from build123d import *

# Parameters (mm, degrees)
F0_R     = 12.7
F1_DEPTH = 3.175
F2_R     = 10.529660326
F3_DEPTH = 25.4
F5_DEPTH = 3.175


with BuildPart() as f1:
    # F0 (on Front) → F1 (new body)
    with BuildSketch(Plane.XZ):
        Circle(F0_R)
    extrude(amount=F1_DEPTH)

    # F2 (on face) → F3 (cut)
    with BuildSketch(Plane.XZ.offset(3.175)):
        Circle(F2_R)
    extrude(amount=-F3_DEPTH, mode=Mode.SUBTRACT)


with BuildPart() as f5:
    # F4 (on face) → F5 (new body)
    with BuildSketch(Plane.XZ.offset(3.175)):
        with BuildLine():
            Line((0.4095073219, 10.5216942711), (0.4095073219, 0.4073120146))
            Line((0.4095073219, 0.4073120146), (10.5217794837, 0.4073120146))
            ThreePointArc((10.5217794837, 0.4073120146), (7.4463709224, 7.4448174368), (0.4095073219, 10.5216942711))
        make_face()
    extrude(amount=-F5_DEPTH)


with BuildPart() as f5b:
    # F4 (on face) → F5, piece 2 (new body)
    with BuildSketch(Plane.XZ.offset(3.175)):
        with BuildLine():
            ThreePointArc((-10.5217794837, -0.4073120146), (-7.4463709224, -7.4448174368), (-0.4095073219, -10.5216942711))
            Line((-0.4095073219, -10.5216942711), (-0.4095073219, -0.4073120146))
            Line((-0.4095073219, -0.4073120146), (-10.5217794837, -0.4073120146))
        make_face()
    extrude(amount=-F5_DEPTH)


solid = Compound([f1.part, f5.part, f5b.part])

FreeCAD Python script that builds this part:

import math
import FreeCAD as App
import Part
import Sketcher
Q = App.Units.Quantity

doc = App.newDocument("Part")
params = doc.addObject("Spreadsheet::Sheet", "Params")
for row, (alias, value) in enumerate([
    ("sketch1_diameter", "1 in"),
    ("pad1_length", "0.125 in"),
    ("pocket1_length", "1 in"),
    ("pad2_length", "0.125 in"),
    ("pad3_length", "0.125 in"),
], start=1):
    params.set(f"A{row}", alias)
    params.set(f"B{row}", "=" + value)
    params.setAlias(f"B{row}", alias)

body = doc.addObject("PartDesign::Body", "Body")

sketch1 = body.newObject("Sketcher::SketchObject", "Sketch")
sketch1.AttachmentSupport = (doc.getObject("XZ_Plane"), [""])
sketch1.MapMode = "FlatFace"
sketch1.addGeometry(Part.Circle(App.Vector(0, 0, 0), App.Vector(0, 0, 1), 13), False)
sketch1.addConstraint(Sketcher.Constraint("Coincident", 0, 3, -1, 1))
sketch1.addConstraint(Sketcher.Constraint("Diameter", 0, Q("1 in")))
sketch1.setExpression("Constraints[1]", "Params.sketch1_diameter")
pad1 = body.newObject("PartDesign::Pad", "Pad")
pad1.Profile = sketch1
pad1.setExpression("Length", "Params.pad1_length")

sketch2 = body.newObject("Sketcher::SketchObject", "Sketch001")
sketch2.AttachmentSupport = (doc.getObject("XZ_Plane"), [""])
sketch2.MapMode = "FlatFace"
sketch2.AttachmentOffset = App.Placement(App.Vector(0, 0, 0.125 * 25.4), App.Rotation())
sketch2.addGeometry(Part.Circle(App.Vector(0, 0, 0), App.Vector(0, 0, 1), 11), False)
sketch2.addConstraint(Sketcher.Constraint("Coincident", 0, 3, -1, 1))
sketch2.addConstraint(Sketcher.Constraint("Diameter", 0, 21.059321))
pocket1 = body.newObject("PartDesign::Pocket", "Pocket")
pocket1.Profile = sketch2
pocket1.setExpression("Length", "Params.pocket1_length")
body2 = doc.addObject("PartDesign::Body", "Body001")

sketch3 = body2.newObject("Sketcher::SketchObject", "Sketch002")
sketch3.AttachmentSupport = (doc.getObject("XZ_Plane001"), [""])
sketch3.MapMode = "FlatFace"
sketch3.AttachmentOffset = App.Placement(App.Vector(0, 0, 0.125 * 25.4), App.Rotation())
sketch3.addGeometry(Part.LineSegment(App.Vector(0, 11, 0), App.Vector(0, 0, 0)), False)
sketch3.addGeometry(Part.LineSegment(App.Vector(0, 0, 0), App.Vector(11, 0, 0)), False)
sketch3.addGeometry(Part.ArcOfCircle(Part.Circle(App.Vector(0, 0, 0), App.Vector(0, 0, 1), 11), math.radians(2), math.radians(88)), False)
sketch3.addConstraint(Sketcher.Constraint("Coincident", 0, 2, 1, 1))
sketch3.addConstraint(Sketcher.Constraint("Coincident", 1, 2, 2, 1))
sketch3.addConstraint(Sketcher.Constraint("Coincident", 2, 2, 0, 1))
sketch3.addConstraint(Sketcher.Constraint("Vertical", 0))
sketch3.addConstraint(Sketcher.Constraint("Horizontal", 1))
sketch3.addConstraint(Sketcher.Constraint("Coincident", 2, 3, -1, 1))
sketch3.addConstraint(Sketcher.Constraint("Radius", 2, 10.52966))
sketch3.addConstraint(Sketcher.Constraint("DistanceX", 1, 1, 1, 2, 10.112272))
sketch3.addConstraint(Sketcher.Constraint("DistanceY", 0, 2, 0, 1, 10.114382))
pad2 = body2.newObject("PartDesign::Pad", "Pad001")
pad2.Profile = sketch3
pad2.setExpression("Length", "Params.pad2_length")
pad2.Reversed = True
body3 = doc.addObject("PartDesign::Body", "Body002")

sketch4 = body3.newObject("Sketcher::SketchObject", "Sketch003")
sketch4.AttachmentSupport = (doc.getObject("XZ_Plane002"), [""])
sketch4.MapMode = "FlatFace"
sketch4.AttachmentOffset = App.Placement(App.Vector(0, 0, 0.125 * 25.4), App.Rotation())
sketch4.addGeometry(Part.ArcOfCircle(Part.Circle(App.Vector(0, 0, 0), App.Vector(0, 0, 1), 11), math.radians(-178), math.radians(-92)), False)
sketch4.addGeometry(Part.LineSegment(App.Vector(0, -11, 0), App.Vector(0, 0, 0)), False)
sketch4.addGeometry(Part.LineSegment(App.Vector(0, 0, 0), App.Vector(-11, 0, 0)), False)
sketch4.addConstraint(Sketcher.Constraint("Coincident", 0, 2, 1, 1))
sketch4.addConstraint(Sketcher.Constraint("Coincident", 1, 2, 2, 1))
sketch4.addConstraint(Sketcher.Constraint("Coincident", 2, 2, 0, 1))
sketch4.addConstraint(Sketcher.Constraint("Vertical", 1))
sketch4.addConstraint(Sketcher.Constraint("Horizontal", 2))
sketch4.addConstraint(Sketcher.Constraint("Coincident", 0, 3, -1, 1))
sketch4.addConstraint(Sketcher.Constraint("Radius", 0, 10.52966))
sketch4.addConstraint(Sketcher.Constraint("DistanceX", 2, 2, 2, 1, 10.112272))
sketch4.addConstraint(Sketcher.Constraint("DistanceY", 1, 1, 1, 2, 10.114382))
pad3 = body3.newObject("PartDesign::Pad", "Pad002")
pad3.Profile = sketch4
pad3.setExpression("Length", "Params.pad3_length")
pad3.Reversed = True

doc.recompute()
